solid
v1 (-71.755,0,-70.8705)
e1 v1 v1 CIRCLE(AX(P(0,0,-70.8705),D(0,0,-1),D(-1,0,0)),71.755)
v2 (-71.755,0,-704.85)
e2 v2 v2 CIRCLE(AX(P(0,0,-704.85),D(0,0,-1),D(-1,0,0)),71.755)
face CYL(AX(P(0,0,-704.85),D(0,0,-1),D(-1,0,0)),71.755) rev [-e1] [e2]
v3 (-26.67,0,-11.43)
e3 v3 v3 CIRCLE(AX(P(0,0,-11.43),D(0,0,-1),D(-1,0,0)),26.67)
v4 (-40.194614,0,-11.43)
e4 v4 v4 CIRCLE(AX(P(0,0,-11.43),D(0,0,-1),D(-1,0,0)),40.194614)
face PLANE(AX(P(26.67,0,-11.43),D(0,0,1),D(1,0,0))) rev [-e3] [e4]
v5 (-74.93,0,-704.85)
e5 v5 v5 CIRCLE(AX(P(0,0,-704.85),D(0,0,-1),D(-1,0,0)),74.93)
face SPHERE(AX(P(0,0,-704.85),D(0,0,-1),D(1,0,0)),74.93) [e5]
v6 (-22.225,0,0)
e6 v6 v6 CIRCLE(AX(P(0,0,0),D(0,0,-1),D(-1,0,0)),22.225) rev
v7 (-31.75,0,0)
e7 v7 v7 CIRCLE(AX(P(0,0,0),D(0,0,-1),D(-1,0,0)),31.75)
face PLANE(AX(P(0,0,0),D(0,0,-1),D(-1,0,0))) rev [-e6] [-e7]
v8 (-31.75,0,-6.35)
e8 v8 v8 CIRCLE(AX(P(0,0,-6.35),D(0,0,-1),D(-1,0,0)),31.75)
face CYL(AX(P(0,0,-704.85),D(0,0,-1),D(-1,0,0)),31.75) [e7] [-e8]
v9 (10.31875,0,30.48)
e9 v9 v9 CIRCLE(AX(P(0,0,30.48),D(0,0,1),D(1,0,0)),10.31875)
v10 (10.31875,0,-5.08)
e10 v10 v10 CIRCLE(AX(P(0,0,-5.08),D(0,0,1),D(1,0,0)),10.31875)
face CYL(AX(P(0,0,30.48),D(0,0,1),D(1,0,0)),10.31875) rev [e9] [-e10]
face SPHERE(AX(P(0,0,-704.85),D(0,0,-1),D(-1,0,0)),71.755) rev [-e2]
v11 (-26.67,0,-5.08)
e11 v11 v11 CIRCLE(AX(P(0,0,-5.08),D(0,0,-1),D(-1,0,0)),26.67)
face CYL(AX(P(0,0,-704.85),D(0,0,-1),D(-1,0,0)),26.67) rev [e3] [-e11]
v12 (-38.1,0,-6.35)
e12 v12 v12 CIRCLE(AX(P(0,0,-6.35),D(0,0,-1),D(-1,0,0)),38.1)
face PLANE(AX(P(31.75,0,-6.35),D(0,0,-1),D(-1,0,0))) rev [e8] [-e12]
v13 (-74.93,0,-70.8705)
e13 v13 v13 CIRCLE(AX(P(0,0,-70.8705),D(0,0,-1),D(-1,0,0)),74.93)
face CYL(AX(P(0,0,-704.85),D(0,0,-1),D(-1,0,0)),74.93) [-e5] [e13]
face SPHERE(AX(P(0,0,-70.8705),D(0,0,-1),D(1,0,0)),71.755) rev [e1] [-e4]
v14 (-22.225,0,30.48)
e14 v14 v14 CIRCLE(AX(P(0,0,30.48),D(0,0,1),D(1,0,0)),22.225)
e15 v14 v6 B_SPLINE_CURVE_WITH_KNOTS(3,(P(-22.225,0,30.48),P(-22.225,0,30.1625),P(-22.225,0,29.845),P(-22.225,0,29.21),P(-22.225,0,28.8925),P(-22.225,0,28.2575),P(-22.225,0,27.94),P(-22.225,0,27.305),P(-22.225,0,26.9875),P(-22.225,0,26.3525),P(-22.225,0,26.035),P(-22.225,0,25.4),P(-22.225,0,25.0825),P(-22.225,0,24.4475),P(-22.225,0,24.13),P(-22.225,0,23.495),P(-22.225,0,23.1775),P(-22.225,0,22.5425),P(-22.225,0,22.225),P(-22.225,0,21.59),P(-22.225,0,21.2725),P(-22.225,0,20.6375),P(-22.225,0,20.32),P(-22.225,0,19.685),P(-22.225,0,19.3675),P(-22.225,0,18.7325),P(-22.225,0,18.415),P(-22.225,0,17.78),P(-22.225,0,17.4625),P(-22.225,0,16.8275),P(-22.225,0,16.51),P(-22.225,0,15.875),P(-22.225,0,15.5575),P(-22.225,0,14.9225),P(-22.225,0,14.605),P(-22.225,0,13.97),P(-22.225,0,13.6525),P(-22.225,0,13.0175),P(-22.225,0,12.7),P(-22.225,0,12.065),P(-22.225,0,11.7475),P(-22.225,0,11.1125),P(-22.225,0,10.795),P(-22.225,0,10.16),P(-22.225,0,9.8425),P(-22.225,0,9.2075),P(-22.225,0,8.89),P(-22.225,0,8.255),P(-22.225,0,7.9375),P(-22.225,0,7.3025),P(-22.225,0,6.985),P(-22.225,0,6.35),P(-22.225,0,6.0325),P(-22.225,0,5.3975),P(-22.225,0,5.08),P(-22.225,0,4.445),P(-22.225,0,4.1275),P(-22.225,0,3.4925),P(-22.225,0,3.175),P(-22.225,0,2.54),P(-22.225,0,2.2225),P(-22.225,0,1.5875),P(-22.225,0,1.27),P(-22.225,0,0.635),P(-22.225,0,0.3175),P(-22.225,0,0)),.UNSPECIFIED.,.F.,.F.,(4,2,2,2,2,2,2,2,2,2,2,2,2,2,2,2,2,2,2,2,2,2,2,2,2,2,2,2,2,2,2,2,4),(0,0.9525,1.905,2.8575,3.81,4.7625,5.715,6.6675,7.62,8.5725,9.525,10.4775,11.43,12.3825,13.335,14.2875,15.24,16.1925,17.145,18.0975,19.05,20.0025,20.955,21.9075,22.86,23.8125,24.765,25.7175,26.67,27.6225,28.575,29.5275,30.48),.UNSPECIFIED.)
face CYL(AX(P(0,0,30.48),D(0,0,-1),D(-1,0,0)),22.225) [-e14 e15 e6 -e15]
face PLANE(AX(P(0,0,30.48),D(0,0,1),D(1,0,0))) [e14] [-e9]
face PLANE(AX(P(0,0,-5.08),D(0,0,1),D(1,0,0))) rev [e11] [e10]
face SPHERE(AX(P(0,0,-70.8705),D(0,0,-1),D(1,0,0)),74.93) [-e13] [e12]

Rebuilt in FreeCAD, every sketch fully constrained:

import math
import FreeCAD as App
import Part
import Sketcher
from FreeCAD import Vector
Q = App.Units.Quantity

doc = App.newDocument("Part")
params = doc.addObject("Spreadsheet::Sheet", "Params")
for row, (alias, value) in enumerate([
    ("sketch1_radius", "2.95 in"),
    ("sketch1_height", "0.2 in"),
    ("sketch1_radius2", "2.825 in"),
    ("sketch1_width", "1.25 in"),
    ("sketch1_width2", "0.25 in"),
    ("revolution_angle", "360 deg"),
    ("sketch2_diameter", "1.75 in"),
    ("pad1_length", "1.2 in"),
    ("sketch3_diameter", "0.8125 in"),
    ("hole_diameter", "0.8125 in"),
    ("hole_depth", "1.96 in"),
], start=1):
    params.set(f"A{row}", alias)
    params.set(f"B{row}", "=" + value)
    params.setAlias(f"B{row}", alias)

body = doc.addObject("PartDesign::Body", "Body")

# Sketch on XZ plane
sketch1 = doc.addObject("Sketcher::SketchObject", "Sketch")
body.addObject(sketch1)
sketch1.AttachmentSupport = (doc.XZ_Plane, [""])
sketch1.MapMode = "FlatFace"
sketch1.addGeometry(Part.LineSegment(Vector(0, 0, 0), Vector(31.8, 0, 0)), False)
sketch1.addGeometry(Part.LineSegment(Vector(31.8, 0, 0), Vector(31.8, -6.3, 0)), False)
sketch1.addGeometry(Part.LineSegment(Vector(31.8, -6.3, 0), Vector(38.1, -6.3, 0)), False)
sketch1.addGeometry(Part.ArcOfCircle(Part.Circle(Vector(0, -70.9, 0), Vector(0, 0, 1), 74.9), math.radians(0), math.radians(59)), False)
sketch1.addGeometry(Part.LineSegment(Vector(74.9, -70.9, 0), Vector(74.9, -704.9, 0)), False)
sketch1.addGeometry(Part.ArcOfCircle(Part.Circle(Vector(0, -704.8, 0), Vector(0, 0, 1), 74.9), math.radians(-90), math.radians(0)), False)
sketch1.addGeometry(Part.LineSegment(Vector(0, -779.8, 0), Vector(0, -776.6, 0)), False)
sketch1.addGeometry(Part.ArcOfCircle(Part.Circle(Vector(0, -704.9, 0), Vector(0, 0, 1), 71.8), math.radians(-90), math.radians(0)), False)
sketch1.addGeometry(Part.LineSegment(Vector(71.8, -704.9, 0), Vector(71.8, -70.9, 0)), False)
sketch1.addGeometry(Part.ArcOfCircle(Part.Circle(Vector(0, -70.9, 0), Vector(0, 0, 1), 71.8), math.radians(0), math.radians(56)), False)
sketch1.addGeometry(Part.LineSegment(Vector(40.2, -11.4, 0), Vector(26.7, -11.4, 0)), False)
sketch1.addGeometry(Part.LineSegment(Vector(26.7, -11.4, 0), Vector(26.7, -5.1, 0)), False)
sketch1.addGeometry(Part.LineSegment(Vector(26.7, -5.1, 0), Vector(0, -5.1, 0)), False)
sketch1.addGeometry(Part.LineSegment(Vector(0, -5.1, 0), Vector(0, 0, 0)), False)
sketch1.addConstraint(Sketcher.Constraint("Coincident", 0, 2, 1, 1))
sketch1.addConstraint(Sketcher.Constraint("Coincident", 1, 2, 2, 1))
sketch1.addConstraint(Sketcher.Constraint("Coincident", 2, 2, 3, 2))
sketch1.addConstraint(Sketcher.Constraint("Tangent", 3, 1, 4, 1))
sketch1.addConstraint(Sketcher.Constraint("Tangent", 4, 2, 5, 2))
sketch1.addConstraint(Sketcher.Constraint("Coincident", 5, 1, 6, 1))
sketch1.addConstraint(Sketcher.Constraint("Coincident", 6, 2, 7, 1))
sketch1.addConstraint(Sketcher.Constraint("Tangent", 7, 2, 8, 1))
sketch1.addConstraint(Sketcher.Constraint("Tangent", 8, 2, 9, 1))
sketch1.addConstraint(Sketcher.Constraint("Coincident", 9, 2, 10, 1))
sketch1.addConstraint(Sketcher.Constraint("Coincident", 10, 2, 11, 1))
sketch1.addConstraint(Sketcher.Constraint("Coincident", 11, 2, 12, 1))
sketch1.addConstraint(Sketcher.Constraint("Coincident", 12, 2, 13, 1))
sketch1.addConstraint(Sketcher.Constraint("Coincident", 13, 2, 0, 1))
sketch1.addConstraint(Sketcher.Constraint("Horizontal", 0))
sketch1.addConstraint(Sketcher.Constraint("Vertical", 1))
sketch1.addConstraint(Sketcher.Constraint("Horizontal", 2))
sketch1.addConstraint(Sketcher.Constraint("Vertical", 4))
sketch1.addConstraint(Sketcher.Constraint("Vertical", 6))
sketch1.addConstraint(Sketcher.Constraint("Vertical", 8))
sketch1.addConstraint(Sketcher.Constraint("Horizontal", 10))
sketch1.addConstraint(Sketcher.Constraint("Vertical", 11))
sketch1.addConstraint(Sketcher.Constraint("Horizontal", 12))
sketch1.addConstraint(Sketcher.Constraint("Vertical", 13))
sketch1.addConstraint(Sketcher.Constraint("Coincident", 13, 2, -1, 1))
sketch1.addConstraint(Sketcher.Constraint("Coincident", 7, 3, 5, 3))
sketch1.addConstraint(Sketcher.Constraint("Coincident", 9, 3, 3, 3))
sketch1.addConstraint(Sketcher.Constraint("Equal", 3, 5))
sketch1.addConstraint(Sketcher.Constraint("PointOnObject", 3, 3, -2))
sketch1.addConstraint(Sketcher.Constraint("PointOnObject", 5, 1, -2))
sketch1.addConstraint(Sketcher.Constraint("Equal", 2, 1))
sketch1.addConstraint(Sketcher.Constraint("Equal", 1, 11))
sketch1.addConstraint(Sketcher.Constraint("Radius", 3, Q("2.95 in")))
sketch1.addConstraint(Sketcher.Constraint("DistanceY", 13, 1, 13, 2, Q("0.2 in")))
sketch1.addConstraint(Sketcher.Constraint("Radius", 7, Q("2.825 in")))
sketch1.addConstraint(Sketcher.Constraint("DistanceX", 0, 1, 0, 2, Q("1.25 in")))
sketch1.addConstraint(Sketcher.Constraint("DistanceX", 2, 1, 2, 2, Q("0.25 in")))
sketch1.addConstraint(Sketcher.Constraint("DistanceX", 12, 2, 12, 1, Q("1.05 in")))
sketch1.addConstraint(Sketcher.Constraint("DistanceY", 5, 1, -1, 1, Q("30.7 in")))
sketch1.setExpression("Constraints[32]", "Params.sketch1_radius")
sketch1.setExpression("Constraints[33]", "Params.sketch1_height")
sketch1.setExpression("Constraints[34]", "Params.sketch1_radius2")
sketch1.setExpression("Constraints[35]", "Params.sketch1_width")
sketch1.setExpression("Constraints[36]", "Params.sketch1_width2")
revolution = doc.addObject("PartDesign::Revolution", "Revolution")
body.addObject(revolution)
revolution.Profile = sketch1
revolution.ReferenceAxis = (sketch1, ["V_Axis"])
revolution.setExpression("Angle", "Params.revolution_angle")

# Sketch on XY plane
sketch2 = doc.addObject("Sketcher::SketchObject", "Sketch001")
body.addObject(sketch2)
sketch2.AttachmentSupport = (doc.XY_Plane, [""])
sketch2.MapMode = "FlatFace"
sketch2.addGeometry(Part.Circle(Vector(0, 0, 0), Vector(0, 0, 1), 22), False)
sketch2.addConstraint(Sketcher.Constraint("Coincident", 0, 3, -1, 1))
sketch2.addConstraint(Sketcher.Constraint("Diameter", 0, Q("1.75 in")))
sketch2.setExpression("Constraints[1]", "Params.sketch2_diameter")
pad1 = doc.addObject("PartDesign::Pad", "Pad")
body.addObject(pad1)
pad1.Profile = sketch2
pad1.setExpression("Length", "Params.pad1_length")

# Sketch on XY plane
sketch3 = doc.addObject("Sketcher::SketchObject", "Sketch002")
body.addObject(sketch3)
sketch3.AttachmentSupport = (doc.XY_Plane, [""])
sketch3.MapMode = "FlatFace"
sketch3.AttachmentOffset = App.Placement(Vector(0, 0, 1.2 * 25.4), App.Rotation())
sketch3.addGeometry(Part.Circle(Vector(0, 0, 0), Vector(0, 0, 1), 10), False)
sketch3.addConstraint(Sketcher.Constraint("Coincident", 0, 3, -1, 1))
sketch3.addConstraint(Sketcher.Constraint("Diameter", 0, Q("0.8125 in")))
sketch3.setExpression("Constraints[1]", "Params.sketch3_diameter")
doc.recompute()
hole = doc.addObject("PartDesign::Hole", "Hole")
body.addObject(hole)
hole.Profile = sketch3
hole.ThreadType = "None"
hole.setExpression("Diameter", "Params.hole_diameter")
hole.DepthType = "Dimension"
hole.setExpression("Depth", "Params.hole_depth")
hole.DrillPoint = "Angled"
hole.DrillPointAngle = 118

doc.recompute()
